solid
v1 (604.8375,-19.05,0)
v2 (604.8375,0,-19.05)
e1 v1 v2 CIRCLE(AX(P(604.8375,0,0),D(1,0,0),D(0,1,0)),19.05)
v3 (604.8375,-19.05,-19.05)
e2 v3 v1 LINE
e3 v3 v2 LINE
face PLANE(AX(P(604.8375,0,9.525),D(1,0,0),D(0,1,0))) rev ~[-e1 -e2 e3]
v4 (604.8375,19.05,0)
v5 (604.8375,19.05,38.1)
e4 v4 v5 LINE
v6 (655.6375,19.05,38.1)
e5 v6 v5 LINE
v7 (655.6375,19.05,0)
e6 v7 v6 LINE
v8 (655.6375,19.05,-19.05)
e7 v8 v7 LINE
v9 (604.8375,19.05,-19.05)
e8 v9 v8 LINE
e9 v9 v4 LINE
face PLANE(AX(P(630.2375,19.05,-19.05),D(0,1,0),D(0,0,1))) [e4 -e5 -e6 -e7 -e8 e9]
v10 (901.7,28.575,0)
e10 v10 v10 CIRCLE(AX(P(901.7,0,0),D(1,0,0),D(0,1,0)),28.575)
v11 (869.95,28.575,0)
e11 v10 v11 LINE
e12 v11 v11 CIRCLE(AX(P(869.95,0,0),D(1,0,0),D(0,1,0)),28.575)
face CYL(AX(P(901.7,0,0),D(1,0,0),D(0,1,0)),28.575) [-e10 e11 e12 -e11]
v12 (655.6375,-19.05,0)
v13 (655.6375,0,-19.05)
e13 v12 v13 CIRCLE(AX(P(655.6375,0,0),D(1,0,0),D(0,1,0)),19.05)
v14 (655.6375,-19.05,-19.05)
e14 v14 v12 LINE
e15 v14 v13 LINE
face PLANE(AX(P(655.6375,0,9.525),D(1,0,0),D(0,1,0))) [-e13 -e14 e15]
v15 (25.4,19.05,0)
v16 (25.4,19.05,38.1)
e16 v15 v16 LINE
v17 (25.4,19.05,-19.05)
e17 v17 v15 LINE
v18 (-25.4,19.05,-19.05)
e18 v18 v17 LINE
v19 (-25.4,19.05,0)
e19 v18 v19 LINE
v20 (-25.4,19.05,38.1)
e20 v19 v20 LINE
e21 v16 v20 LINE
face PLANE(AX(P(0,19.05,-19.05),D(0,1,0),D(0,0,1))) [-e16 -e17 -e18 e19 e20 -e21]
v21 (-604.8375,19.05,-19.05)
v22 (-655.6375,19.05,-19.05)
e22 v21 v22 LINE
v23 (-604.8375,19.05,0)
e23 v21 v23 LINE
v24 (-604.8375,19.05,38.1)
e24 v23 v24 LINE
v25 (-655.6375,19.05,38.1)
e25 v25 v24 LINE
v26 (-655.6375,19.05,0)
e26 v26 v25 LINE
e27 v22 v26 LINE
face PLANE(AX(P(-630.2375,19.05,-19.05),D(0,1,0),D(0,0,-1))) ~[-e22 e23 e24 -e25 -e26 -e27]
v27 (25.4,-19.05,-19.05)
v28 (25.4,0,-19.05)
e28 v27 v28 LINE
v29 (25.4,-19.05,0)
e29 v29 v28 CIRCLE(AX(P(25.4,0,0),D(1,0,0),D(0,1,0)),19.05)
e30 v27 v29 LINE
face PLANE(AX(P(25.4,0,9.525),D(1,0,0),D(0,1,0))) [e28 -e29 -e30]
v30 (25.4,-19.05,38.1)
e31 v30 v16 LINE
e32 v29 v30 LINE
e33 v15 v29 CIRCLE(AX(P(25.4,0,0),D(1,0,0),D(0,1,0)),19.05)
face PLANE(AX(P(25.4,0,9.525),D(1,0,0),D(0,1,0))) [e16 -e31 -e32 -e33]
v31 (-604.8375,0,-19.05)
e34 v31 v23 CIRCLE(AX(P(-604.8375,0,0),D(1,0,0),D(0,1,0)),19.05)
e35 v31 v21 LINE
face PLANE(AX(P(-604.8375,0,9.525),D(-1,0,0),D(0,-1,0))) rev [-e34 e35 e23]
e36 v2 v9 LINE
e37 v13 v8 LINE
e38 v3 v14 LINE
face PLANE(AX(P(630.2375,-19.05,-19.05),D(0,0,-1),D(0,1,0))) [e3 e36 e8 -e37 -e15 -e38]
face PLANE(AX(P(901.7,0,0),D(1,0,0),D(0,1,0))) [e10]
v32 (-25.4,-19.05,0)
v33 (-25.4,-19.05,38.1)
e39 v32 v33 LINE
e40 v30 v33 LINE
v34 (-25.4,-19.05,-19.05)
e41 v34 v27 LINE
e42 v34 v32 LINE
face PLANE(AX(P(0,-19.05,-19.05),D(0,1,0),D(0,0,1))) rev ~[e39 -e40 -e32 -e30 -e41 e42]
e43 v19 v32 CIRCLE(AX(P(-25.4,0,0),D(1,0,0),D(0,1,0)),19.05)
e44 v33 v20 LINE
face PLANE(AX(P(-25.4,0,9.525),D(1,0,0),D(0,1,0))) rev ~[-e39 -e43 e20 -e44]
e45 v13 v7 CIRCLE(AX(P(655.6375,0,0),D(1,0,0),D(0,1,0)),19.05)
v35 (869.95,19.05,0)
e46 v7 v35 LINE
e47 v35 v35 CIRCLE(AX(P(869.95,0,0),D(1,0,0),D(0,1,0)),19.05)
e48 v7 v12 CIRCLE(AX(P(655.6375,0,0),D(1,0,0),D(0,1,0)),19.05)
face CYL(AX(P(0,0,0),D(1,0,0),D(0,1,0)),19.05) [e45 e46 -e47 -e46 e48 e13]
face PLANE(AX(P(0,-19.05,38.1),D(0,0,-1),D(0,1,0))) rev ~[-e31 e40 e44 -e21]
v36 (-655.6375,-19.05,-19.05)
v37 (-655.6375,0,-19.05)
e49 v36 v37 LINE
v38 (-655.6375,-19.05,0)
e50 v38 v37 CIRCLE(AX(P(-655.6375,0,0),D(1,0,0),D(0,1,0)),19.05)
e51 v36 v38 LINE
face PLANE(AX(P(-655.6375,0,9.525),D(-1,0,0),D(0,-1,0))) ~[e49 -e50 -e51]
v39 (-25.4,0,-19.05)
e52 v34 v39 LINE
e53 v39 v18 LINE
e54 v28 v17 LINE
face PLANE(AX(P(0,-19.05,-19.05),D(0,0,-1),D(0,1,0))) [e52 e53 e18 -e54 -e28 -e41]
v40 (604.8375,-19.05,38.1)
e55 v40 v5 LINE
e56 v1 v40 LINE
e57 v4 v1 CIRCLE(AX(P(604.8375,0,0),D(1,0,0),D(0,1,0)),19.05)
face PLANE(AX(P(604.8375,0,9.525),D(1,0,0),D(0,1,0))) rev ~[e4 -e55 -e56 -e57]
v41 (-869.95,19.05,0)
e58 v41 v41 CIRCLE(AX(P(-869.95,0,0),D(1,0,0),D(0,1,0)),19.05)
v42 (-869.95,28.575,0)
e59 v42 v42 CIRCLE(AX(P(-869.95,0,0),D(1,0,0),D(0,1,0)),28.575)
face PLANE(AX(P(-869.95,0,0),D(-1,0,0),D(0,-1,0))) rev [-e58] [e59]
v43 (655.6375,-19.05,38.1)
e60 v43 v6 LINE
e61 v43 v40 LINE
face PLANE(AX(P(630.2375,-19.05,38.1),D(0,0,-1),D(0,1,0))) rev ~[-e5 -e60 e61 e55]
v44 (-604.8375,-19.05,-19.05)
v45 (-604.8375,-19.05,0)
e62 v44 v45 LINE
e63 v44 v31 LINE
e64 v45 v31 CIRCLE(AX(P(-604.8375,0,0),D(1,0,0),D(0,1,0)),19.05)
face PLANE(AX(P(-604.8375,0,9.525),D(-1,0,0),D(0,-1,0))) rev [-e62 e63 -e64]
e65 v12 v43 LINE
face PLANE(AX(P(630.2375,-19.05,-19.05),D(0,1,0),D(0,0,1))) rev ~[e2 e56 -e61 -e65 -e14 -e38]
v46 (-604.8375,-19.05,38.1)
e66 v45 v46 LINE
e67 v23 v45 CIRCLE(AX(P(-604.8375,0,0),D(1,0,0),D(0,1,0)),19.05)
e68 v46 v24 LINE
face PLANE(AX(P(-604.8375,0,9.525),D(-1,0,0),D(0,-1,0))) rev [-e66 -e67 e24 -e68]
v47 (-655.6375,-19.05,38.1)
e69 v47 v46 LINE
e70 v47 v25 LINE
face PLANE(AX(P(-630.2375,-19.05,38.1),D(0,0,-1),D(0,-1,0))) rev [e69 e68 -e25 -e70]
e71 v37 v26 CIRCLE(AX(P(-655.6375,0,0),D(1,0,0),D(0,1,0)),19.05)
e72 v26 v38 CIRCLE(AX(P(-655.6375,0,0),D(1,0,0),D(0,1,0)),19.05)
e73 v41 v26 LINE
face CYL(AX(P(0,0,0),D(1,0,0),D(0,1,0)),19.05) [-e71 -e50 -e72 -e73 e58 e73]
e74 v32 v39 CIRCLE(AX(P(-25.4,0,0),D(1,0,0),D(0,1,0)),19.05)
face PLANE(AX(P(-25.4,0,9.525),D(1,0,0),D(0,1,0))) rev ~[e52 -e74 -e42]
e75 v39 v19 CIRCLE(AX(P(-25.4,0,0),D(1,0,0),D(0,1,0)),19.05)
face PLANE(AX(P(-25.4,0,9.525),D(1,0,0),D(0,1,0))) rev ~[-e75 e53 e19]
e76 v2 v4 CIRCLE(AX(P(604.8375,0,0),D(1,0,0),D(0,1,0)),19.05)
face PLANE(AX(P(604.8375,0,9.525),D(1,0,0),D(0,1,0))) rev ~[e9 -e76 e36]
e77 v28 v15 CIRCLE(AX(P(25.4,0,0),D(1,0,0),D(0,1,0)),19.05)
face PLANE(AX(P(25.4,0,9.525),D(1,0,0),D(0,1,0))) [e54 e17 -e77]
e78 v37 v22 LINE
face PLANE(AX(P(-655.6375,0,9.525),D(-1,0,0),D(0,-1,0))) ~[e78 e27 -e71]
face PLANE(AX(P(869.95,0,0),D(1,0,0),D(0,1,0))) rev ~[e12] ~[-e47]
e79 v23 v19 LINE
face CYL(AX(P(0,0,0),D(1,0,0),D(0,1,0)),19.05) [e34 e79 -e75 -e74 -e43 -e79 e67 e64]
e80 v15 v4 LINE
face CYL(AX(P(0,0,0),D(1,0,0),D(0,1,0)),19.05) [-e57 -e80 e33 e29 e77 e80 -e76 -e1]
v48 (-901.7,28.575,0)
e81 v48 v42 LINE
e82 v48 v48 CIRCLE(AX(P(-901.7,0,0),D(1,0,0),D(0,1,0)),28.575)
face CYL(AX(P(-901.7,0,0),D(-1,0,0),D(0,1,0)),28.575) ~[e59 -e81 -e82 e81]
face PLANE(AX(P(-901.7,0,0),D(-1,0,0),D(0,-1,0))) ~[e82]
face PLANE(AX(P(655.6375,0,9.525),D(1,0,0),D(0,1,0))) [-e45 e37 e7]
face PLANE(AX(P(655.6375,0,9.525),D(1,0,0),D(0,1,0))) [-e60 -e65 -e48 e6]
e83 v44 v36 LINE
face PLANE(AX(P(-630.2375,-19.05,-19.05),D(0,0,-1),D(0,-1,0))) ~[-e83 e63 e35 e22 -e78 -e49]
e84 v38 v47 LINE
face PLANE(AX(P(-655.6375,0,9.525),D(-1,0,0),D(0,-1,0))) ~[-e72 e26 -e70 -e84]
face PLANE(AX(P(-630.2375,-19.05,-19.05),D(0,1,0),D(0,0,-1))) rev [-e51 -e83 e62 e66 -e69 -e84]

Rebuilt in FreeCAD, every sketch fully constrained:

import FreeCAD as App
import Part
import Sketcher

V = App.Vector
Q = App.Units.Quantity

doc = App.newDocument("Part")
body = doc.addObject("PartDesign::Body", "Body")

# Sketch on YZ plane
sketch1 = doc.addObject("Sketcher::SketchObject", "Sketch")
body.addObject(sketch1)
sketch1.AttachmentSupport = (doc.YZ_Plane, [""])
sketch1.MapMode = "FlatFace"
sketch1.addGeometry(Part.Circle(V(0, 0, 0), V(0, 0, 1), 19), False)
sketch1.addConstraint(Sketcher.Constraint("Coincident", 0, 3, -1, 1))
sketch1.addConstraint(Sketcher.Constraint("Diameter", 0, Q("1.5 in")))
pad1 = doc.addObject("PartDesign::Pad", "Pad")
body.addObject(pad1)
pad1.Profile = sketch1
pad1.Length = Q("71 in")
pad1.Midplane = True

# Sketch on YZ plane
sketch2 = doc.addObject("Sketcher::SketchObject", "Sketch001")
body.addObject(sketch2)
sketch2.AttachmentSupport = (doc.YZ_Plane, [""])
sketch2.MapMode = "FlatFace"
sketch2.addGeometry(Part.LineSegment(V(-19, 38, 0), V(-19, -19, 0)), False)
sketch2.addGeometry(Part.LineSegment(V(-19, -19, 0), V(19, -19, 0)), False)
sketch2.addGeometry(Part.LineSegment(V(19, -19, 0), V(19, 38, 0)), False)
sketch2.addGeometry(Part.LineSegment(V(19, 38, 0), V(-19, 38, 0)), False)
sketch2.addConstraint(Sketcher.Constraint("Coincident", 0, 2, 1, 1))
sketch2.addConstraint(Sketcher.Constraint("Coincident", 1, 2, 2, 1))
sketch2.addConstraint(Sketcher.Constraint("Coincident", 2, 2, 3, 1))
sketch2.addConstraint(Sketcher.Constraint("Coincident", 3, 2, 0, 1))
sketch2.addConstraint(Sketcher.Constraint("Vertical", 0))
sketch2.addConstraint(Sketcher.Constraint("Horizontal", 1))
sketch2.addConstraint(Sketcher.Constraint("Vertical", 2))
sketch2.addConstraint(Sketcher.Constraint("Horizontal", 3))
sketch2.addConstraint(Sketcher.Constraint("DistanceX", 1, 1, 1, 2, Q("1.5 in")))
sketch2.addConstraint(Sketcher.Constraint("DistanceY", 0, 2, 0, 1, Q("2.25 in")))
sketch2.addConstraint(Sketcher.Constraint("DistanceY", -1, 1, 2, 2, Q("1.5 in")))
sketch2.addConstraint(Sketcher.Constraint("DistanceX", 0, 2, -1, 1, Q("0.75 in")))
pad2 = doc.addObject("PartDesign::Pad", "Pad001")
body.addObject(pad2)
pad2.Profile = sketch2
pad2.Length = Q("2 in")
pad2.Midplane = True

# Sketch on YZ plane
sketch3 = doc.addObject("Sketcher::SketchObject", "Sketch002")
body.addObject(sketch3)
sketch3.AttachmentSupport = (doc.YZ_Plane, [""])
sketch3.MapMode = "FlatFace"
sketch3.AttachmentOffset = App.Placement(V(0, 0, 24.8125 * 25.4), App.Rotation())
sketch3.addGeometry(Part.LineSegment(V(-19, 38, 0), V(-19, -19, 0)), False)
sketch3.addGeometry(Part.LineSegment(V(-19, -19, 0), V(19, -19, 0)), False)
sketch3.addGeometry(Part.LineSegment(V(19, -19, 0), V(19, 38, 0)), False)
sketch3.addGeometry(Part.LineSegment(V(19, 38, 0), V(-19, 38, 0)), False)
sketch3.addConstraint(Sketcher.Constraint("Coincident", 0, 2, 1, 1))
sketch3.addConstraint(Sketcher.Constraint("Coincident", 1, 2, 2, 1))
sketch3.addConstraint(Sketcher.Constraint("Coincident", 2, 2, 3, 1))
sketch3.addConstraint(Sketcher.Constraint("Coincident", 3, 2, 0, 1))
sketch3.addConstraint(Sketcher.Constraint("Vertical", 0))
sketch3.addConstraint(Sketcher.Constraint("Horizontal", 1))
sketch3.addConstraint(Sketcher.Constraint("Vertical", 2))
sketch3.addConstraint(Sketcher.Constraint("Horizontal", 3))
sketch3.addConstraint(Sketcher.Constraint("DistanceX", 1, 1, 1, 2, Q("1.5 in")))
sketch3.addConstraint(Sketcher.Constraint("DistanceY", 0, 2, 0, 1, Q("2.25 in")))
sketch3.addConstraint(Sketcher.Constraint("DistanceY", -1, 1, 2, 2, Q("1.5 in")))
sketch3.addConstraint(Sketcher.Constraint("DistanceX", 0, 2, -1, 1, Q("0.75 in")))
pad3 = doc.addObject("PartDesign::Pad", "Pad002")
body.addObject(pad3)
pad3.Profile = sketch3
pad3.Length = Q("2 in")
pad3.Midplane = True
body2 = doc.addObject("PartDesign::Body", "Body001")

# Sketch on YZ plane
sketch4 = doc.addObject("Sketcher::SketchObject", "Sketch003")
body2.addObject(sketch4)
sketch4.AttachmentSupport = (doc.getObject("YZ_Plane001"), [""])
sketch4.MapMode = "FlatFace"
sketch4.AttachmentOffset = App.Placement(V(0, 0, 35.5 * 25.4), App.Rotation())
sketch4.addGeometry(Part.Circle(V(0, 0, 0), V(0, 0, 1), 29), False)
sketch4.addGeometry(Part.Circle(V(0, 0, 0), V(0, 0, 1), 19), False)
sketch4.addConstraint(Sketcher.Constraint("Coincident", 0, 3, -1, 1))
sketch4.addConstraint(Sketcher.Constraint("Coincident", 1, 3, -1, 1))
sketch4.addConstraint(Sketcher.Constraint("Diameter", 1, Q("1.5 in")))
sketch4.addConstraint(Sketcher.Constraint("Diameter", 0, Q("2.25 in")))
pad4 = doc.addObject("PartDesign::Pad", "Pad003")
body2.addObject(pad4)
pad4.Profile = sketch4
pad4.Length = Q("1.25 in")
pad4.Reversed = True
body3 = doc.addObject("PartDesign::Body", "Body002")
doc.recompute()

body3.BaseFeature = body
doc.recompute()

body4 = doc.addObject("PartDesign::Body", "Body003")
body4.BaseFeature = body2
boolean = doc.addObject("PartDesign::Boolean", "Boolean")
body3.addObject(boolean)
boolean.Type = "Fuse"
boolean.addObjects([body4])
doc.recompute()

mirroring = doc.addObject("Part::Mirroring", "Mirroring")
mirroring.Source = body
mirroring.Base = V(0, 0, 0)
mirroring.Normal = V(1, 0, 0)
body5 = doc.addObject("PartDesign::Body", "Body004")
body5.BaseFeature = mirroring
boolean2 = doc.addObject("PartDesign::Boolean", "Boolean001")
body3.addObject(boolean2)
boolean2.Type = "Fuse"
boolean2.addObjects([body5])
doc.recompute()

mirroring2 = doc.addObject("Part::Mirroring", "Mirroring001")
mirroring2.Source = body2
mirroring2.Base = V(0, 0, 0)
mirroring2.Normal = V(1, 0, 0)
body6 = doc.addObject("PartDesign::Body", "Body005")
body6.BaseFeature = mirroring2
boolean3 = doc.addObject("PartDesign::Boolean", "Boolean002")
body3.addObject(boolean3)
boolean3.Type = "Fuse"
boolean3.addObjects([body6])
doc.recompute()
mirroring.Visibility = False
mirroring2.Visibility = False

doc.recompute()
